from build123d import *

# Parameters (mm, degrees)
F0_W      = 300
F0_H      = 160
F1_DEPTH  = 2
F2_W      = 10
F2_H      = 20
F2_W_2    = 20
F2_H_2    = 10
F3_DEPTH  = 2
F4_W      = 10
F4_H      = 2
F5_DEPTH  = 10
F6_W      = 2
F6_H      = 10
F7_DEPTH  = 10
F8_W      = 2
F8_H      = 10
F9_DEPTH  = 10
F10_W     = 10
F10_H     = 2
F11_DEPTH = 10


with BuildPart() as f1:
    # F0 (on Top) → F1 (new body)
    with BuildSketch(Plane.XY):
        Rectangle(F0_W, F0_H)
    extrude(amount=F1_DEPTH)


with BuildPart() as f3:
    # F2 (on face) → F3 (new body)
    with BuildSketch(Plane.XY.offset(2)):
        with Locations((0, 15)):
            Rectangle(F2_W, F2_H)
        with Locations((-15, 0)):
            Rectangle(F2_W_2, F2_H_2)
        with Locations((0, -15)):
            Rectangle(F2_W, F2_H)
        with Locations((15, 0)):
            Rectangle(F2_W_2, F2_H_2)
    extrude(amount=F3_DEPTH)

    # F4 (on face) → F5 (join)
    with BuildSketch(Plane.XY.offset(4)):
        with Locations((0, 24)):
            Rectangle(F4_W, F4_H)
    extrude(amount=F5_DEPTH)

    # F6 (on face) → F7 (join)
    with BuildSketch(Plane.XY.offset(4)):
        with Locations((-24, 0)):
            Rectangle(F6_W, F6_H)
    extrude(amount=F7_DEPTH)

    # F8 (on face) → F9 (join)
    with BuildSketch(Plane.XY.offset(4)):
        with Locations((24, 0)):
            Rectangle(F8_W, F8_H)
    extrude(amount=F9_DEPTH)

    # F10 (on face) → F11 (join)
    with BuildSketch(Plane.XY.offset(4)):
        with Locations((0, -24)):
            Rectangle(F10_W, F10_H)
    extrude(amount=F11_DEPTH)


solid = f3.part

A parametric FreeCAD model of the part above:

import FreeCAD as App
import Part
import Sketcher
Q = App.Units.Quantity


def add_polygon(sketch, points):
    """Adds a closed chain of lines whose ends are joined by coincident constraints."""
    first, n = sketch.GeometryCount, len(points)
    for a, b in zip(points, points[1:] + points[:1]):
        sketch.addGeometry(Part.LineSegment(App.Vector(*a, 0), App.Vector(*b, 0)), False)
    for i in range(n):
        sketch.addConstraint(Sketcher.Constraint("Coincident", first + i, 2, first + (i + 1) % n, 1))

doc = App.newDocument("Part")
params = doc.addObject("Spreadsheet::Sheet", "Params")
for row, (alias, value) in enumerate([
    ("sketch1_width", "300 mm"),
    ("sketch1_height", "160 mm"),
    ("pad1_length", "2 mm"),
    ("sketch2_width", "10 mm"),
    ("sketch2_width2", "20 mm"),
    ("pad2_length", "2 mm"),
    ("sketch3_width", "10 mm"),
    ("sketch3_height", "2 mm"),
    ("pad3_length", "10 mm"),
    ("sketch4_width", "2 mm"),
    ("sketch4_height", "10 mm"),
    ("pad4_length", "10 mm"),
    ("sketch5_width", "2 mm"),
    ("sketch5_height", "10 mm"),
    ("pad5_length", "10 mm"),
    ("sketch6_width", "10 mm"),
    ("sketch6_height", "2 mm"),
    ("pad6_length", "10 mm"),
], start=1):
    params.set(f"A{row}", alias)
    params.set(f"B{row}", "=" + value)
    params.setAlias(f"B{row}", alias)

body = doc.addObject("PartDesign::Body", "Body")

# Sketch on XY plane
sketch1 = body.newObject("Sketcher::SketchObject", "Sketch")
sketch1.AttachmentSupport = (doc.getObject("XY_Plane"), [""])
sketch1.MapMode = "FlatFace"
add_polygon(sketch1, [(-150, 80), (-150, -80), (150, -80), (150, 80)])  # lines 0-3
sketch1.addConstraint(Sketcher.Constraint("Vertical", 0))
sketch1.addConstraint(Sketcher.Constraint("Horizontal", 1))
sketch1.addConstraint(Sketcher.Constraint("Vertical", 2))
sketch1.addConstraint(Sketcher.Constraint("Horizontal", 3))
sketch1.addConstraint(Sketcher.Constraint("Symmetric", 0, 2, 2, 2, -1, 1))
sketch1.addConstraint(Sketcher.Constraint("DistanceX", 1, 1, 1, 2, Q("300 mm")))
sketch1.addConstraint(Sketcher.Constraint("DistanceY", 0, 2, 0, 1, Q("160 mm")))
sketch1.setExpression("Constraints[9]", "Params.sketch1_width")
sketch1.setExpression("Constraints[10]", "Params.sketch1_height")
pad1 = body.newObject("PartDesign::Pad", "Pad")
pad1.Profile = sketch1
pad1.setExpression("Length", "Params.pad1_length")
body2 = doc.addObject("PartDesign::Body", "Body001")
body2.AllowCompound = True

# Sketch on XY plane
sketch2 = body2.newObject("Sketcher::SketchObject", "Sketch001")
sketch2.AttachmentSupport = (doc.getObject("XY_Plane001"), [""])
sketch2.MapMode = "FlatFace"
sketch2.AttachmentOffset = App.Placement(App.Vector(0, 0, 2), App.Rotation())
add_polygon(sketch2, [(-5, 25), (-5, 5), (5, 5), (5, 25)])  # lines 0-3
add_polygon(sketch2, [(-25, 5), (-25, -5), (-5, -5), (-5, 5)])  # lines 4-7
add_polygon(sketch2, [(-5, -5), (-5, -25), (5, -25), (5, -5)])  # lines 8-11
add_polygon(sketch2, [(5, 5), (5, -5), (25, -5), (25, 5)])  # lines 12-15
sketch2.addConstraint(Sketcher.Constraint("Vertical", 0))
sketch2.addConstraint(Sketcher.Constraint("Horizontal", 1))
sketch2.addConstraint(Sketcher.Constraint("Vertical", 2))
sketch2.addConstraint(Sketcher.Constraint("Horizontal", 3))
sketch2.addConstraint(Sketcher.Constraint("Vertical", 4))
sketch2.addConstraint(Sketcher.Constraint("Horizontal", 5))
sketch2.addConstraint(Sketcher.Constraint("Vertical", 6))
sketch2.addConstraint(Sketcher.Constraint("Horizontal", 7))
sketch2.addConstraint(Sketcher.Constraint("Vertical", 8))
sketch2.addConstraint(Sketcher.Constraint("Horizontal", 9))
sketch2.addConstraint(Sketcher.Constraint("Vertical", 10))
sketch2.addConstraint(Sketcher.Constraint("Horizontal", 11))
sketch2.addConstraint(Sketcher.Constraint("Vertical", 12))
sketch2.addConstraint(Sketcher.Constraint("Horizontal", 13))
sketch2.addConstraint(Sketcher.Constraint("Vertical", 14))
sketch2.addConstraint(Sketcher.Constraint("Horizontal", 15))
sketch2.addConstraint(Sketcher.Constraint("Coincident", 6, 2, 0, 2))
sketch2.addConstraint(Sketcher.Constraint("Coincident", 11, 2, 5, 2))
sketch2.addConstraint(Sketcher.Constraint("Coincident", 12, 2, 10, 2))
sketch2.addConstraint(Sketcher.Constraint("Coincident", 15, 2, 1, 2))
sketch2.addConstraint(Sketcher.Constraint("Symmetric", 1, 2, 5, 2, -1, 1))
sketch2.addConstraint(Sketcher.Constraint("Equal", 7, 13))
sketch2.addConstraint(Sketcher.Constraint("Equal", 15, 0))
sketch2.addConstraint(Sketcher.Constraint("Equal", 11, 4))
sketch2.addConstraint(Sketcher.Constraint("Equal", 2, 8))
sketch2.addConstraint(Sketcher.Constraint("DistanceX", 1, 1, 1, 2, Q("10 mm")))
sketch2.addConstraint(Sketcher.Constraint("DistanceX", 5, 1, 5, 2, Q("20 mm")))
sketch2.setExpression("Constraints[41]", "Params.sketch2_width")
sketch2.setExpression("Constraints[42]", "Params.sketch2_width2")
pad2 = body2.newObject("PartDesign::Pad", "Pad001")
pad2.Profile = sketch2
pad2.setExpression("Length", "Params.pad2_length")

# Sketch on XY plane
sketch3 = body2.newObject("Sketcher::SketchObject", "Sketch002")
sketch3.AttachmentSupport = (doc.getObject("XY_Plane001"), [""])
sketch3.MapMode = "FlatFace"
sketch3.AttachmentOffset = App.Placement(App.Vector(0, 0, 4), App.Rotation())
add_polygon(sketch3, [(-5, 25), (-5, 23), (5, 23), (5, 25)])  # lines 0-3
sketch3.addConstraint(Sketcher.Constraint("Vertical", 0))
sketch3.addConstraint(Sketcher.Constraint("Horizontal", 1))
sketch3.addConstraint(Sketcher.Constraint("Vertical", 2))
sketch3.addConstraint(Sketcher.Constraint("Horizontal", 3))
sketch3.addConstraint(Sketcher.Constraint("DistanceX", 1, 1, 1, 2, Q("10 mm")))
sketch3.addConstraint(Sketcher.Constraint("DistanceY", 0, 2, 0, 1, Q("2 mm")))
sketch3.addConstraint(Sketcher.Constraint("DistanceX", 0, 2, -1, 1, Q("5 mm")))
sketch3.addConstraint(Sketcher.Constraint("DistanceY", -1, 1, 0, 2, Q("23 mm")))
sketch3.setExpression("Constraints[8]", "Params.sketch3_width")
sketch3.setExpression("Constraints[9]", "Params.sketch3_height")
pad3 = body2.newObject("PartDesign::Pad", "Pad002")
pad3.Profile = sketch3
pad3.setExpression("Length", "Params.pad3_length")

# Sketch on XY plane
sketch4 = body2.newObject("Sketcher::SketchObject", "Sketch003")
sketch4.AttachmentSupport = (doc.getObject("XY_Plane001"), [""])
sketch4.MapMode = "FlatFace"
sketch4.AttachmentOffset = App.Placement(App.Vector(0, 0, 4), App.Rotation())
add_polygon(sketch4, [(-25, 5), (-25, -5), (-23, -5), (-23, 5)])  # lines 0-3
sketch4.addConstraint(Sketcher.Constraint("Vertical", 0))
sketch4.addConstraint(Sketcher.Constraint("Horizontal", 1))
sketch4.addConstraint(Sketcher.Constraint("Vertical", 2))
sketch4.addConstraint(Sketcher.Constraint("Horizontal", 3))
sketch4.addConstraint(Sketcher.Constraint("DistanceX", 1, 1, 1, 2, Q("2 mm")))
sketch4.addConstraint(Sketcher.Constraint("DistanceY", 0, 2, 0, 1, Q("10 mm")))
sketch4.addConstraint(Sketcher.Constraint("DistanceX", 0, 2, -1, 1, Q("25 mm")))
sketch4.addConstraint(Sketcher.Constraint("DistanceY", 0, 2, -1, 1, Q("5 mm")))
sketch4.setExpression("Constraints[8]", "Params.sketch4_width")
sketch4.setExpression("Constraints[9]", "Params.sketch4_height")
pad4 = body2.newObject("PartDesign::Pad", "Pad003")
pad4.Profile = sketch4
pad4.setExpression("Length", "Params.pad4_length")

# Sketch on XY plane
sketch5 = body2.newObject("Sketcher::SketchObject", "Sketch004")
sketch5.AttachmentSupport = (doc.getObject("XY_Plane001"), [""])
sketch5.MapMode = "FlatFace"
sketch5.AttachmentOffset = App.Placement(App.Vector(0, 0, 4), App.Rotation())
add_polygon(sketch5, [(23, 5), (23, -5), (25, -5), (25, 5)])  # lines 0-3
sketch5.addConstraint(Sketcher.Constraint("Vertical", 0))
sketch5.addConstraint(Sketcher.Constraint("Horizontal", 1))
sketch5.addConstraint(Sketcher.Constraint("Vertical", 2))
sketch5.addConstraint(Sketcher.Constraint("Horizontal", 3))
sketch5.addConstraint(Sketcher.Constraint("DistanceX", 1, 1, 1, 2, Q("2 mm")))
sketch5.addConstraint(Sketcher.Constraint("DistanceY", 0, 2, 0, 1, Q("10 mm")))
sketch5.addConstraint(Sketcher.Constraint("DistanceX", -1, 1, 0, 2, Q("23 mm")))
sketch5.addConstraint(Sketcher.Constraint("DistanceY", 0, 2, -1, 1, Q("5 mm")))
sketch5.setExpression("Constraints[8]", "Params.sketch5_width")
sketch5.setExpression("Constraints[9]", "Params.sketch5_height")
pad5 = body2.newObject("PartDesign::Pad", "Pad004")
pad5.Profile = sketch5
pad5.setExpression("Length", "Params.pad5_length")

# Sketch on XY plane
sketch6 = body2.newObject("Sketcher::SketchObject", "Sketch005")
sketch6.AttachmentSupport = (doc.getObject("XY_Plane001"), [""])
sketch6.MapMode = "FlatFace"
sketch6.AttachmentOffset = App.Placement(App.Vector(0, 0, 4), App.Rotation())
add_polygon(sketch6, [(-5, -23), (-5, -25), (5, -25), (5, -23)])  # lines 0-3
sketch6.addConstraint(Sketcher.Constraint("Vertical", 0))
sketch6.addConstraint(Sketcher.Constraint("Horizontal", 1))
sketch6.addConstraint(Sketcher.Constraint("Vertical", 2))
sketch6.addConstraint(Sketcher.Constraint("Horizontal", 3))
sketch6.addConstraint(Sketcher.Constraint("DistanceX", 1, 1, 1, 2, Q("10 mm")))
sketch6.addConstraint(Sketcher.Constraint("DistanceY", 0, 2, 0, 1, Q("2 mm")))
sketch6.addConstraint(Sketcher.Constraint("DistanceX", 0, 2, -1, 1, Q("5 mm")))
sketch6.addConstraint(Sketcher.Constraint("DistanceY", 0, 2, -1, 1, Q("25 mm")))
sketch6.setExpression("Constraints[8]", "Params.sketch6_width")
sketch6.setExpression("Constraints[9]", "Params.sketch6_height")
pad6 = body2.newObject("PartDesign::Pad", "Pad005")
pad6.Profile = sketch6
pad6.setExpression("Length", "Params.pad6_length")
body.Visibility = False

doc.recompute()
